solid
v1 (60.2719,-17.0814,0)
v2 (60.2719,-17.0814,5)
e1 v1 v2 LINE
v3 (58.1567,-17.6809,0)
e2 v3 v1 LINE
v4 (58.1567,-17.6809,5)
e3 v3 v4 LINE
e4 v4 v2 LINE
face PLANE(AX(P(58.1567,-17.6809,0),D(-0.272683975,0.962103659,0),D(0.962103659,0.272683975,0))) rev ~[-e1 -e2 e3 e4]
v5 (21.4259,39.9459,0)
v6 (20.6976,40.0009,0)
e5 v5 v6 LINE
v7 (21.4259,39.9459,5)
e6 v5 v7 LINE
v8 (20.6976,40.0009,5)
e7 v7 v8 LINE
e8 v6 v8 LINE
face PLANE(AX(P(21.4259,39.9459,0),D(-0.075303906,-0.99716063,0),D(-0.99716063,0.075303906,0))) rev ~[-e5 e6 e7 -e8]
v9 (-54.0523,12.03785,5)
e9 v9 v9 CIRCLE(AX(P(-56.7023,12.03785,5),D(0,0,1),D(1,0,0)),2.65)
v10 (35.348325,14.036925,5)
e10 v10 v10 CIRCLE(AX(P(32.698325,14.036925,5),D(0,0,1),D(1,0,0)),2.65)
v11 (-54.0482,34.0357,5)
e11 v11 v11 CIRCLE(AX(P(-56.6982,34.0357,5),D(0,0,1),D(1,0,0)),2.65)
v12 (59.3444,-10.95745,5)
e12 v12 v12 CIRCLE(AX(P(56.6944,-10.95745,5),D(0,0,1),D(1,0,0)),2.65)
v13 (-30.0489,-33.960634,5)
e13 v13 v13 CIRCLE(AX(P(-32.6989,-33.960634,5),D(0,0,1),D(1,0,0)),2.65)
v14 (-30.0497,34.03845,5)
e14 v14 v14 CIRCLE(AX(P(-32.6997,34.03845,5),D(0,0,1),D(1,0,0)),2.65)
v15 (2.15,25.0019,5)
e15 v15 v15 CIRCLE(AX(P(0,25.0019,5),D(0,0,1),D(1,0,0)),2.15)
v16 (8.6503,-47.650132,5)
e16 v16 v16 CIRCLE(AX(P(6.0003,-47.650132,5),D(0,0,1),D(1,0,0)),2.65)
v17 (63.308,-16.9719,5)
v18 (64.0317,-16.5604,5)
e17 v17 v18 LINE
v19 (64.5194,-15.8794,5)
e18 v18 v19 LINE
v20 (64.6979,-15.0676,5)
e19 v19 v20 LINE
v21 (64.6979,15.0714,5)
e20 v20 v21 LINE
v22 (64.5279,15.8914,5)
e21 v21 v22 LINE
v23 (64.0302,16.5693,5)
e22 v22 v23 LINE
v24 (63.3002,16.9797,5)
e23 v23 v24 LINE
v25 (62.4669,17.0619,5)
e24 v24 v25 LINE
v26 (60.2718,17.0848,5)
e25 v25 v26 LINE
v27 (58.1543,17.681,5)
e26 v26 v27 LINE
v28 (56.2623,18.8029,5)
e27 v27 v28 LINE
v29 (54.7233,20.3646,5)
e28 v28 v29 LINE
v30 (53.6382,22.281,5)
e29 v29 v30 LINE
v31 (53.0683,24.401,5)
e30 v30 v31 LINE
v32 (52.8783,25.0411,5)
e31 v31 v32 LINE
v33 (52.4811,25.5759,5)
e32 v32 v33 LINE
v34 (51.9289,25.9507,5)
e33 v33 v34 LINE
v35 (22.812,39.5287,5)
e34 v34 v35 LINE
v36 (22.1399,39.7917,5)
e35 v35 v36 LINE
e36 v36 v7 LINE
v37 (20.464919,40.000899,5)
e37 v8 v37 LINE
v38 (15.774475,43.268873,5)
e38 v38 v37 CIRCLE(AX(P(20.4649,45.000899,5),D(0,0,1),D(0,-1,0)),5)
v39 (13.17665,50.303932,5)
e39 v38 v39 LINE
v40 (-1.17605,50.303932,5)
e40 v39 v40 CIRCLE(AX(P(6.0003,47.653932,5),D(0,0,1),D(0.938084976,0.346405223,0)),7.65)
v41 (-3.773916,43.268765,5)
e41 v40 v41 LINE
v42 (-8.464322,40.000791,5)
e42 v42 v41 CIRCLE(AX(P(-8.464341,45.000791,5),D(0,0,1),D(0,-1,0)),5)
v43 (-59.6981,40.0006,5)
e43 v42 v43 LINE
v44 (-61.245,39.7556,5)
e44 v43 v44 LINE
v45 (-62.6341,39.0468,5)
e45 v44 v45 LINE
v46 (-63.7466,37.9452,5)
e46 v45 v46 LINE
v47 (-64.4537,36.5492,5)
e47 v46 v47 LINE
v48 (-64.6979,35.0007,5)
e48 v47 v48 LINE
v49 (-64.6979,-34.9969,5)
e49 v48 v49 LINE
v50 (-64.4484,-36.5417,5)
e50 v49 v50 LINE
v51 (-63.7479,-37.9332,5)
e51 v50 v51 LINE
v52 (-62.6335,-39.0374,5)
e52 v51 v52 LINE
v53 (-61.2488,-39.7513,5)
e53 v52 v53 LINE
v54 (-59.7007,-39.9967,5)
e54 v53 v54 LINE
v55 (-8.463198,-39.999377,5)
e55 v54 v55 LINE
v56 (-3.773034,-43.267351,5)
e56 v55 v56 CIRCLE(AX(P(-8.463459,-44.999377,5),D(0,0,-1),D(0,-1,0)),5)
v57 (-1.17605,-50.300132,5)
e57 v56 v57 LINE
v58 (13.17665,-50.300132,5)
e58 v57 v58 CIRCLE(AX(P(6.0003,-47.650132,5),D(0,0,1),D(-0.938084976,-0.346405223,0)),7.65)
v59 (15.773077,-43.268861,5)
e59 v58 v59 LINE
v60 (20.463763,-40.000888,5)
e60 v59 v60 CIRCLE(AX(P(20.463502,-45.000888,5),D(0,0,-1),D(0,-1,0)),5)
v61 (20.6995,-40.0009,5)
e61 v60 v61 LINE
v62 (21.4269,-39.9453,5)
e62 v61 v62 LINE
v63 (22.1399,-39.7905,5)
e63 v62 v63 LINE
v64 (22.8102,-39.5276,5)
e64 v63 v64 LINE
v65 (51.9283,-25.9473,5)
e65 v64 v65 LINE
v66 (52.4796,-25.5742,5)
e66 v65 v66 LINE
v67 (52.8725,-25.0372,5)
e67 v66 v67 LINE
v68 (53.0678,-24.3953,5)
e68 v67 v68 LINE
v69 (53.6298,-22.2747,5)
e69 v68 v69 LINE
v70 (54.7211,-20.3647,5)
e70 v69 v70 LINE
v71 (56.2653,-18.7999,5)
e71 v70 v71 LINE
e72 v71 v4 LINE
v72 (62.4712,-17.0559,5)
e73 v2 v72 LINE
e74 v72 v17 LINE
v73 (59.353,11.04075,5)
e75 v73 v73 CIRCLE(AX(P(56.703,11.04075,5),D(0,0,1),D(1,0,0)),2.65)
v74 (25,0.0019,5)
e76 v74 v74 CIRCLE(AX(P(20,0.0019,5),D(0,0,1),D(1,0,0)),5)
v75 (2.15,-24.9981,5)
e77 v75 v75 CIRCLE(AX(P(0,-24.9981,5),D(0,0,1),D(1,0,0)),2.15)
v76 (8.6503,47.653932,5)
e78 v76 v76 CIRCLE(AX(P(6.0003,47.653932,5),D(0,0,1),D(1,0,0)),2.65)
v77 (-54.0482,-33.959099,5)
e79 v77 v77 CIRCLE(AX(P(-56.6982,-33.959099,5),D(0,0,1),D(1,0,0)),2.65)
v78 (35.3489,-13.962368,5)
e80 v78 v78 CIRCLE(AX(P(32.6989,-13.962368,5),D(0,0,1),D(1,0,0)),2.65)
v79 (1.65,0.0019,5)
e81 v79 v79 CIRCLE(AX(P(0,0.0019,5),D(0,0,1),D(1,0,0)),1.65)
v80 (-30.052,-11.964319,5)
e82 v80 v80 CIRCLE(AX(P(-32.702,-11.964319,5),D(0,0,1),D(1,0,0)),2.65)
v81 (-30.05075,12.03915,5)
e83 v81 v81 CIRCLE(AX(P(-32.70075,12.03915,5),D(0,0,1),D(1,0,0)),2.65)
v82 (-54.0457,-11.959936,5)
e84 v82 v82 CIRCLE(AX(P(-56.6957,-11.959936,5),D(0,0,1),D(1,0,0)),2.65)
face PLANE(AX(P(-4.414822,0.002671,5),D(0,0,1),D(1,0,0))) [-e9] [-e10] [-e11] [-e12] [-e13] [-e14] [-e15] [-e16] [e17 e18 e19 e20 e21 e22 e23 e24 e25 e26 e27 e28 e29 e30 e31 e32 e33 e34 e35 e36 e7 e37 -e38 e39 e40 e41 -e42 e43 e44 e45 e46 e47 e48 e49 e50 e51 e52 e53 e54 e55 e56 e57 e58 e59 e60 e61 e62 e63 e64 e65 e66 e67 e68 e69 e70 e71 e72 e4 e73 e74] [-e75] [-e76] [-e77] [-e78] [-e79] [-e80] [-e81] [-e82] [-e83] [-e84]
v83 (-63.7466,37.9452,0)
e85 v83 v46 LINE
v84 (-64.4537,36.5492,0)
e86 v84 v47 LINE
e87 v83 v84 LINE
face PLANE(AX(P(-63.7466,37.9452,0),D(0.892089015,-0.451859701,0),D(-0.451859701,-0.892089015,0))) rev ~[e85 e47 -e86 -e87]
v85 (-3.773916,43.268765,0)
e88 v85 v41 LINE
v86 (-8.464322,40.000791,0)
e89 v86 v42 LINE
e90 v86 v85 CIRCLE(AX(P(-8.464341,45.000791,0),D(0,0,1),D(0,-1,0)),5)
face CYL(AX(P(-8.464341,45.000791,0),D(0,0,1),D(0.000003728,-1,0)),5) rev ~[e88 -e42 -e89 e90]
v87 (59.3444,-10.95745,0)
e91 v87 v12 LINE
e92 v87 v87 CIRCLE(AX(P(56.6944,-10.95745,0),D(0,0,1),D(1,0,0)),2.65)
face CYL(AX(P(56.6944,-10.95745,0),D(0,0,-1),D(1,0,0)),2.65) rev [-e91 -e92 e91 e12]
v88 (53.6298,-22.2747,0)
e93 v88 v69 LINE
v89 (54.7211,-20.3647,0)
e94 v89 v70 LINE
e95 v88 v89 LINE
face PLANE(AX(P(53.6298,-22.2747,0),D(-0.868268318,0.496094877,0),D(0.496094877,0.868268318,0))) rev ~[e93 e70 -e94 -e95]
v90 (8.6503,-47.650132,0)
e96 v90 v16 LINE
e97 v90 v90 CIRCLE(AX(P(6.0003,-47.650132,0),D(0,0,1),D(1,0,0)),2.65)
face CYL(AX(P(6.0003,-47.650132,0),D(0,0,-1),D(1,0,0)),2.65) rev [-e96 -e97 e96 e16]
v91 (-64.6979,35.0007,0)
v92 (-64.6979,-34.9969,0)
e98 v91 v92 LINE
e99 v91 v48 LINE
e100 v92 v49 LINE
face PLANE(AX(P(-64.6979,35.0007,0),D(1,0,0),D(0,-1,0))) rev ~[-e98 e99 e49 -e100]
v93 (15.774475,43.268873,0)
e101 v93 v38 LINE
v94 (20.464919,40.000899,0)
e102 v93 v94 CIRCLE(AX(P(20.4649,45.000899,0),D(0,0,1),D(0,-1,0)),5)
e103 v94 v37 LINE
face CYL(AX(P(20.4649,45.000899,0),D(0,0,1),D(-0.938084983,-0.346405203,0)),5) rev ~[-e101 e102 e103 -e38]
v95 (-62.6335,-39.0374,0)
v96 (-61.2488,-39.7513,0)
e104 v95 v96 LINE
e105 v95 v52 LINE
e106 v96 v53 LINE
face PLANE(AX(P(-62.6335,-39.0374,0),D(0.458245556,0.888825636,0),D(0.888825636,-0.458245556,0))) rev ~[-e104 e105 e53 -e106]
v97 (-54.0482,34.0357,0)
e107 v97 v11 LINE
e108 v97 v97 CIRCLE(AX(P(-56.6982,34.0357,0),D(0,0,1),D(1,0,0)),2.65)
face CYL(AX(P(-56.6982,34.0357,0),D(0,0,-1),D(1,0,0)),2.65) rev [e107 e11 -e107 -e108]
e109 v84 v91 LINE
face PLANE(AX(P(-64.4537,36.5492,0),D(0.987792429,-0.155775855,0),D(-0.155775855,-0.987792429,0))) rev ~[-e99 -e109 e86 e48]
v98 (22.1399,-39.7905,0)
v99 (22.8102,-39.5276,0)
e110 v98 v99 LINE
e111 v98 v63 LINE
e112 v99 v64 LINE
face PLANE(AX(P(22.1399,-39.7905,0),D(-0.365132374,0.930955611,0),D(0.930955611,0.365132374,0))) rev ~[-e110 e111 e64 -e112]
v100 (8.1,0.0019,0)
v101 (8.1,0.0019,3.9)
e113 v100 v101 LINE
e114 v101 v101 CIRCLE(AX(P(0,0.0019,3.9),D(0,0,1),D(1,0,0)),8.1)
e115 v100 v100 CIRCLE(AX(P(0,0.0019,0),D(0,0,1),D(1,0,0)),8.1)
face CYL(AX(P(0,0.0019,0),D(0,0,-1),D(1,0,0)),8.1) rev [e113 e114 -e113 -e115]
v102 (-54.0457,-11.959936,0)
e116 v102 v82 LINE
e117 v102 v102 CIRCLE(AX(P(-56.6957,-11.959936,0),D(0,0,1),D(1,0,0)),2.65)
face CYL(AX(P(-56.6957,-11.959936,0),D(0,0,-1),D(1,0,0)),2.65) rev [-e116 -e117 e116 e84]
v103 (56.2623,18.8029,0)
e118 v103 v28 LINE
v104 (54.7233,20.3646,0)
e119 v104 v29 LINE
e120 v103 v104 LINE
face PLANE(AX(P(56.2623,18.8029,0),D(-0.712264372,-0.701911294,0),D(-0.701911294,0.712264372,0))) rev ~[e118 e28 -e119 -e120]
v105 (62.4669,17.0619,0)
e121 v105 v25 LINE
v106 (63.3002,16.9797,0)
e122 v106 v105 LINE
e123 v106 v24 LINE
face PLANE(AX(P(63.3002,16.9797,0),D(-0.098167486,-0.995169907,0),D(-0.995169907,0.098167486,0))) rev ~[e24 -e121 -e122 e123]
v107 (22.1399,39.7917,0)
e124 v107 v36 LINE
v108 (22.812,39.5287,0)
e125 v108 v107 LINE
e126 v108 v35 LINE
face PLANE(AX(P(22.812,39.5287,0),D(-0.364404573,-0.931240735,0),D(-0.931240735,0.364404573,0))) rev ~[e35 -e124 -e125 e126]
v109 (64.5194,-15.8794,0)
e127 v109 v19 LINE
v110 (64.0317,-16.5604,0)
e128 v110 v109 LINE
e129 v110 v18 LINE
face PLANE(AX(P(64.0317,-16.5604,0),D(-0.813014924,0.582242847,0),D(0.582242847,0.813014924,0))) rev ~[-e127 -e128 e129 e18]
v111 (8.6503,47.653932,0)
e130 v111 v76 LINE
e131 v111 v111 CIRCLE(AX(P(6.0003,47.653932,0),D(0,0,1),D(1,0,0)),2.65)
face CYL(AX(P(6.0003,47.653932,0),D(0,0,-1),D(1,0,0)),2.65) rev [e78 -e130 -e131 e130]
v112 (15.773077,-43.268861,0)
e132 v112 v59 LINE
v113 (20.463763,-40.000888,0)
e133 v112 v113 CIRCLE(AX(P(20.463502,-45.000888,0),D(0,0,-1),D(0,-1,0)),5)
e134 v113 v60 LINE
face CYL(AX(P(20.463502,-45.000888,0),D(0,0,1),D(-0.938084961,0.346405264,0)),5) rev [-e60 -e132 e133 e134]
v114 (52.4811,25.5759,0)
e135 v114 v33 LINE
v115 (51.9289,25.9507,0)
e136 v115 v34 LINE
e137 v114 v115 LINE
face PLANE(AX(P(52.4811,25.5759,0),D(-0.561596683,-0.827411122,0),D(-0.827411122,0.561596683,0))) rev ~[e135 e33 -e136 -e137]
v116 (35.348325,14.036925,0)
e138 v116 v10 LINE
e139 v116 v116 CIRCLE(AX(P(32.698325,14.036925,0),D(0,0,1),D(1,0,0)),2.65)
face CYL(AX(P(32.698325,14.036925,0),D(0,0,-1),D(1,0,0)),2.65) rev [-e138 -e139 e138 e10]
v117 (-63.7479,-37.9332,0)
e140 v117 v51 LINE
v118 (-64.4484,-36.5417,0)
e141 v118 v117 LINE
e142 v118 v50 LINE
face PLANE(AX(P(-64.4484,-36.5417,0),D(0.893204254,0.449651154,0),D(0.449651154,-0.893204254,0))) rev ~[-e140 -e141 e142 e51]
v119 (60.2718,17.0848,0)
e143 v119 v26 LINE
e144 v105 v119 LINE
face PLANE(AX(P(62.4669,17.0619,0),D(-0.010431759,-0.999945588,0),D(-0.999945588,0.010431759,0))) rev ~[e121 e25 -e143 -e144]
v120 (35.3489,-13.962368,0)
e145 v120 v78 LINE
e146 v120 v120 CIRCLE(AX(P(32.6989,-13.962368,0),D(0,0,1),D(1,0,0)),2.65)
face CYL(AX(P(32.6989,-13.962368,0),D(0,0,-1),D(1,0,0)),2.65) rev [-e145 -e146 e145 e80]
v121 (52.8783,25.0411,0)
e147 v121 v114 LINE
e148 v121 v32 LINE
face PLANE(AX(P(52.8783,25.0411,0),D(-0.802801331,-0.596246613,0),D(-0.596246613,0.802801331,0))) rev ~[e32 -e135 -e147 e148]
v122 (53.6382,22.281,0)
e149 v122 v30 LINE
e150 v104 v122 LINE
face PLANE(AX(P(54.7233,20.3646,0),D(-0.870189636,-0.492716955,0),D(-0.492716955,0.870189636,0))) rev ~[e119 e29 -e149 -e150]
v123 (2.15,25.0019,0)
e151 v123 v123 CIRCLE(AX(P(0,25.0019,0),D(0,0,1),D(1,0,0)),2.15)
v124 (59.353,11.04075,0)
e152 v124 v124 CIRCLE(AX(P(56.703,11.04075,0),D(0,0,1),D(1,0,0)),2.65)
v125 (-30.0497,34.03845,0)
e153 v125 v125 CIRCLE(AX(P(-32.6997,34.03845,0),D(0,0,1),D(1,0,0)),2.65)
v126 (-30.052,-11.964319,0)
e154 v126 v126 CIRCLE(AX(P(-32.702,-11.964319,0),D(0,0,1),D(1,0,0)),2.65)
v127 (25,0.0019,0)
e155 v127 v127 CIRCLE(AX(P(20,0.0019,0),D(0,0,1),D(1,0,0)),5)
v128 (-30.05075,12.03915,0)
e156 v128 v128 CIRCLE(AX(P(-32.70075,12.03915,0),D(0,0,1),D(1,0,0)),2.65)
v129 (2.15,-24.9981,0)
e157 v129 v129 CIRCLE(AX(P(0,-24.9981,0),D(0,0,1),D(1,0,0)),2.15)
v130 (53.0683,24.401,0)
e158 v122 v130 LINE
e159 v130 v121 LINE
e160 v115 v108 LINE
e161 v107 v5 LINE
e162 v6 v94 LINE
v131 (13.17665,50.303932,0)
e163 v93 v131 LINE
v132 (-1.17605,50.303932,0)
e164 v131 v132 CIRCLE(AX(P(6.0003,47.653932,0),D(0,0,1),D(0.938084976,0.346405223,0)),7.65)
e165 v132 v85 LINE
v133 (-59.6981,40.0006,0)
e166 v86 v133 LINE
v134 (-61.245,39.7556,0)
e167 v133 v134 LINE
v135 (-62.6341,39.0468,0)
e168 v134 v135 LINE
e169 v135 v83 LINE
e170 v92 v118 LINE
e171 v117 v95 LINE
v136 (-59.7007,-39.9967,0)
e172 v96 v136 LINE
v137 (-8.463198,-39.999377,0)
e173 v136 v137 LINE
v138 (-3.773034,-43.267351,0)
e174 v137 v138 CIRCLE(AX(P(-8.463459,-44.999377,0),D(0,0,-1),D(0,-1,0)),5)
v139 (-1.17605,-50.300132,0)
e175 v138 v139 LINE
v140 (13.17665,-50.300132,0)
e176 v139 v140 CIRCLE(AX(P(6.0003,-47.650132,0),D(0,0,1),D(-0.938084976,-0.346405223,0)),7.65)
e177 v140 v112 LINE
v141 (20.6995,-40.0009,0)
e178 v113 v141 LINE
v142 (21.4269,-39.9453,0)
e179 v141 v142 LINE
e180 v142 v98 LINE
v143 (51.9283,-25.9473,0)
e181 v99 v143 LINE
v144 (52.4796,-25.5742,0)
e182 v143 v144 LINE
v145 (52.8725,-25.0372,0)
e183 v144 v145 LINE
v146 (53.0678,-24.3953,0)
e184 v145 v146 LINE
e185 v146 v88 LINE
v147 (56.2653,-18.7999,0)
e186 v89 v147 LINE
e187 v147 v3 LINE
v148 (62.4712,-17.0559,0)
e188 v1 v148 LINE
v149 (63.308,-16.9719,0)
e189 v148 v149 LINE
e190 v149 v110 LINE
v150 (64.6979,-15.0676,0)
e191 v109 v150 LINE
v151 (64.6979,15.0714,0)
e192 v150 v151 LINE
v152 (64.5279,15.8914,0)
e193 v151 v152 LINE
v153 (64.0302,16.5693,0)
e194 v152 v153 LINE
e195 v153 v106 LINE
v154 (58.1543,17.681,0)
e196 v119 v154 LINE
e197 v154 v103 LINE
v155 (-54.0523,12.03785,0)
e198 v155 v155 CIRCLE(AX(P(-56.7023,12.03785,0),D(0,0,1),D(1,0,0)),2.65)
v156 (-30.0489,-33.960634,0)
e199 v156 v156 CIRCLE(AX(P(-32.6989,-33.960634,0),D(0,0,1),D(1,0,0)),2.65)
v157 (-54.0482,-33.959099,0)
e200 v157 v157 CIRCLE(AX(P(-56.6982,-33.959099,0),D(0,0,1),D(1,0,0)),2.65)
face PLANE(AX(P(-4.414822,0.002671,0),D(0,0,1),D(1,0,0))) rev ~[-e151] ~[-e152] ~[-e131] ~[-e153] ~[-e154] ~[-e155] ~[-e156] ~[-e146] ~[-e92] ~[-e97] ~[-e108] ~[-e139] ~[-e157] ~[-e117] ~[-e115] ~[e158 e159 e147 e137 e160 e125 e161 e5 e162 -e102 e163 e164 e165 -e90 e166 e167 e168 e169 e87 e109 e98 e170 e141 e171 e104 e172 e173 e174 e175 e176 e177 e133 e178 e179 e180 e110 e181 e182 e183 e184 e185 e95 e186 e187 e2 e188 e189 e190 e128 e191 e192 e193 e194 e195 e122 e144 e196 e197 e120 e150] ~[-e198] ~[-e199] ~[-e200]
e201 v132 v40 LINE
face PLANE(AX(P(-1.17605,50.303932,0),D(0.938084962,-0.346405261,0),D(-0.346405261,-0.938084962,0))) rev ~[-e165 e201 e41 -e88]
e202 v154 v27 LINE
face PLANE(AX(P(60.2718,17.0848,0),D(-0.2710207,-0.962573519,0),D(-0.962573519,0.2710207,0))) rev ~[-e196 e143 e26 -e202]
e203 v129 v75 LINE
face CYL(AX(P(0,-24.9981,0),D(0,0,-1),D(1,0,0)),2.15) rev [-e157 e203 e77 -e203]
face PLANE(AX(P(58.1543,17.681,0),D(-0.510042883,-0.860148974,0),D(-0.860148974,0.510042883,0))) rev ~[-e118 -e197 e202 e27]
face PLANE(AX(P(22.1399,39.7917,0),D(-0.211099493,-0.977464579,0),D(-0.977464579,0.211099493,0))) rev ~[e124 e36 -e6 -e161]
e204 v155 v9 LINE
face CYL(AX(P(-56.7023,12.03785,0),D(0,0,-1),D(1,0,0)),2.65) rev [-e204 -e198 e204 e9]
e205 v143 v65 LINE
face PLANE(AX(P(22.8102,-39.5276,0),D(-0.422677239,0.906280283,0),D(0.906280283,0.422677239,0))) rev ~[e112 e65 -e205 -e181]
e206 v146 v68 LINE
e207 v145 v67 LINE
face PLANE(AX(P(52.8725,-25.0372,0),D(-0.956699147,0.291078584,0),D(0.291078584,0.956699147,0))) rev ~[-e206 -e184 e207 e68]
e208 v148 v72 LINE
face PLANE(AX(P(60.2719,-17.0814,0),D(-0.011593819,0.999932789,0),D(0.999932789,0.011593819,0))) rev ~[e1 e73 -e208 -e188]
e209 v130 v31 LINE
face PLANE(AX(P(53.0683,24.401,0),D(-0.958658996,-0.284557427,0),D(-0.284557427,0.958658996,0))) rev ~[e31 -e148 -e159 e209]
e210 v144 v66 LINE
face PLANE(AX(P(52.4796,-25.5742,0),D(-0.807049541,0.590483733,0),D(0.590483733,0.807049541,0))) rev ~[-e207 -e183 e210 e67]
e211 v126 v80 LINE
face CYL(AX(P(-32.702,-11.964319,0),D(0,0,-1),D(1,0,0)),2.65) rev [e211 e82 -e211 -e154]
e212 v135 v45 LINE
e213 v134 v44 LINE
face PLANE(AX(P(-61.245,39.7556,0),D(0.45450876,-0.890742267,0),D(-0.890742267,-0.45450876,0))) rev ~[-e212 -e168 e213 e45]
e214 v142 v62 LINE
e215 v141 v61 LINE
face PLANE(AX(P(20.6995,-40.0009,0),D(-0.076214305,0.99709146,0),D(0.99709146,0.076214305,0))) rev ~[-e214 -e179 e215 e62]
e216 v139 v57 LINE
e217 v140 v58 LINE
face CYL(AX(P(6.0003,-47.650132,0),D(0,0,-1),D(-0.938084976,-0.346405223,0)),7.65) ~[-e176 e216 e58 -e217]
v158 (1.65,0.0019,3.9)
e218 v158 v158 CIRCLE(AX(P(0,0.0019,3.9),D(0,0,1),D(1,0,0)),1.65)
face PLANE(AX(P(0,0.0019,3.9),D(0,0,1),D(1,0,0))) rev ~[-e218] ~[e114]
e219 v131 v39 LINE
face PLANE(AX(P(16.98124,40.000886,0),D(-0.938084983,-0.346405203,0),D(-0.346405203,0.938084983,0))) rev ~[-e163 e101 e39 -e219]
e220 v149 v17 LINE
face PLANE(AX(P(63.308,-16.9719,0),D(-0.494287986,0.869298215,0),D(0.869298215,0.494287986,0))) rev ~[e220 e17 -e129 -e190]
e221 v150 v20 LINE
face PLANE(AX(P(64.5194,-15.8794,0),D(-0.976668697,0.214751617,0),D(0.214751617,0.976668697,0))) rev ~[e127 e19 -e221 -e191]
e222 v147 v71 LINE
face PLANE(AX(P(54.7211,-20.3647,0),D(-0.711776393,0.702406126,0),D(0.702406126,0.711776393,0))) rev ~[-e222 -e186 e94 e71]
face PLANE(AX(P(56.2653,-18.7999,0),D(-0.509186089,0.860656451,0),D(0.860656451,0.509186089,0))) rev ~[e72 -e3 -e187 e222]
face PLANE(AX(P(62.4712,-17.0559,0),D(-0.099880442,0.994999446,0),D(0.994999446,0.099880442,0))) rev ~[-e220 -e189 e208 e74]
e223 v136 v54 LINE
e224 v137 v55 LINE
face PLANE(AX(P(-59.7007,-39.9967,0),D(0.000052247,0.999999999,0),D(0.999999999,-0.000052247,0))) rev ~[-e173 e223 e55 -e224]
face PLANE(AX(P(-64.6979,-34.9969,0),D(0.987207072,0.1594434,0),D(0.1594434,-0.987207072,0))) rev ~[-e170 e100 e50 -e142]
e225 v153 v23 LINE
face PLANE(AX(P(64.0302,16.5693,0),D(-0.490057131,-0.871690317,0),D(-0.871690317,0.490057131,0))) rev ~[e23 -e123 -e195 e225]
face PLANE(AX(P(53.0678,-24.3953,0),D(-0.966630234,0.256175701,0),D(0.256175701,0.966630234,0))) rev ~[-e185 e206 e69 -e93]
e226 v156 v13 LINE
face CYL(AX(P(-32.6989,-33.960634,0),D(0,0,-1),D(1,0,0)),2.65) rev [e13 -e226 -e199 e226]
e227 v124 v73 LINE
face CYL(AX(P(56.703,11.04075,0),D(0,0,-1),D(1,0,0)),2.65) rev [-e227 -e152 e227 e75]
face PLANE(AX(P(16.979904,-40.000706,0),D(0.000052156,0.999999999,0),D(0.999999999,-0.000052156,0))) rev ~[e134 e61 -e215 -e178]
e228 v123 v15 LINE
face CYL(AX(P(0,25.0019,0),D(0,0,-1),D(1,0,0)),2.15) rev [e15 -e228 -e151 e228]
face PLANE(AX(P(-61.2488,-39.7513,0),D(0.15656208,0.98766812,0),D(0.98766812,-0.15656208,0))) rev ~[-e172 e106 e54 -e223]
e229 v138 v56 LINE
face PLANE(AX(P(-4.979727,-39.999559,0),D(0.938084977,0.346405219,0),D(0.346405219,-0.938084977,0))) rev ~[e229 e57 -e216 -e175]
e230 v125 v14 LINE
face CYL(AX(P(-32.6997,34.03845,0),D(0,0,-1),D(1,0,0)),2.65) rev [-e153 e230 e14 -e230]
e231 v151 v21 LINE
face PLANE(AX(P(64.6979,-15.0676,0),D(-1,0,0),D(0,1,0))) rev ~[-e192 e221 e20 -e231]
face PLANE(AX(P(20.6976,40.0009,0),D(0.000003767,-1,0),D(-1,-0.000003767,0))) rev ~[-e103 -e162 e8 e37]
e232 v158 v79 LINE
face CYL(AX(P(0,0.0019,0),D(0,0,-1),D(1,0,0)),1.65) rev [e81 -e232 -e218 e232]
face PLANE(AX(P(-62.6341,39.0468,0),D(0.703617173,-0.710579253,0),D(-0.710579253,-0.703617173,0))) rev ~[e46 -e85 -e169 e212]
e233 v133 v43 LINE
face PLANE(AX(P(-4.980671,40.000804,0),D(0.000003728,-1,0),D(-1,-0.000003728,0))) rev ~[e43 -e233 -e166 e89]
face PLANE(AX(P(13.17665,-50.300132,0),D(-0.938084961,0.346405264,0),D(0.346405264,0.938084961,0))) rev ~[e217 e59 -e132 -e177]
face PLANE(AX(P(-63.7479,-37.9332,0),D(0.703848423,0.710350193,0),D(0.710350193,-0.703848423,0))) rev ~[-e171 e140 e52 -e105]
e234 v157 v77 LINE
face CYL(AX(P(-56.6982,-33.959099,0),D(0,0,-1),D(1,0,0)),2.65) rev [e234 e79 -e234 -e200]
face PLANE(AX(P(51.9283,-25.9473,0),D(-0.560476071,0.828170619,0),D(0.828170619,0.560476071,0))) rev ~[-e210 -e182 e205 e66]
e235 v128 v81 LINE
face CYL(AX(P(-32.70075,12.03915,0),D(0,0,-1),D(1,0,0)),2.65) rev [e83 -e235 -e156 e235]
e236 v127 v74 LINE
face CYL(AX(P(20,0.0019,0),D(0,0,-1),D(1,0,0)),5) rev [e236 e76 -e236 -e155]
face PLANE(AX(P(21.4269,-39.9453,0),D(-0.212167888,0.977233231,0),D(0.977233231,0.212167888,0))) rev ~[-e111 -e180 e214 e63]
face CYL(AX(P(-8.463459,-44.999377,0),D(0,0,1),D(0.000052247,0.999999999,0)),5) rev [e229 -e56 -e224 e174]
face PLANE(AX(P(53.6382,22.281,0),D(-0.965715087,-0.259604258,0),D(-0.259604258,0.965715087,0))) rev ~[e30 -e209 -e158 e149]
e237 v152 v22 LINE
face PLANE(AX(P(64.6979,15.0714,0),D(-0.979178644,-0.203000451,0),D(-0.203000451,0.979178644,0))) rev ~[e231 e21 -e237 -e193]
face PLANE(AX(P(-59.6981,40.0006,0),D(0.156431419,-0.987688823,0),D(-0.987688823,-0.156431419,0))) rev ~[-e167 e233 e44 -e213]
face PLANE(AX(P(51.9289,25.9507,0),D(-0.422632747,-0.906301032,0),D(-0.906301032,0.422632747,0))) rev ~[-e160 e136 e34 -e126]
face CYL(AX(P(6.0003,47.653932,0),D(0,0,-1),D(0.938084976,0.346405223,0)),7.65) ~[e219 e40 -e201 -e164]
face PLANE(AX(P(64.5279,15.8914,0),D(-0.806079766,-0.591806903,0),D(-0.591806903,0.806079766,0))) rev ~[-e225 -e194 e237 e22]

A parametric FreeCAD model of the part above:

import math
import FreeCAD as App
import Part
import Sketcher
from FreeCAD import Vector
Q = App.Units.Quantity


def edges_at(feature, points):
    """Names of the edges that pass closest to the given points."""
    edges = feature.Shape.Edges
    near = lambda p: min(range(len(edges)), key=lambda i: edges[i].distToShape(Part.Vertex(*p))[0])
    return sorted({f"Edge{near(p) + 1}" for p in points})

doc = App.newDocument("Part")
body = doc.addObject("PartDesign::Body", "Body")

# Sketch on XY plane
sketch1 = body.newObject("Sketcher::SketchObject", "Sketch")
sketch1.AttachmentSupport = (doc.getObject("XY_Plane"), [""])
sketch1.MapMode = "FlatFace"
sketch1.addGeometry(Part.LineSegment(Vector(-64.5, 36.5, 0), Vector(-64.7, 35, 0)), False)
sketch1.addGeometry(Part.LineSegment(Vector(-64.7, 35, 0), Vector(-64.7, -35, 0)), False)
sketch1.addGeometry(Part.LineSegment(Vector(-64.7, -35, 0), Vector(-64.4, -36.5, 0)), False)
sketch1.addGeometry(Part.LineSegment(Vector(-64.4, -36.5, 0), Vector(-63.7, -37.9, 0)), False)
sketch1.addGeometry(Part.LineSegment(Vector(-63.7, -37.9, 0), Vector(-62.6, -39, 0)), False)
sketch1.addGeometry(Part.LineSegment(Vector(-62.6, -39, 0), Vector(-61.2, -39.8, 0)), False)
sketch1.addGeometry(Part.LineSegment(Vector(-61.2, -39.8, 0), Vector(-59.7, -40, 0)), False)
sketch1.addGeometry(Part.LineSegment(Vector(-59.7, -40, 0), Vector(-5, -40, 0)), False)
sketch1.addGeometry(Part.LineSegment(Vector(-5, -40, 0), Vector(-1.2, -50.3, 0)), False)
sketch1.addGeometry(Part.ArcOfCircle(Part.Circle(Vector(6, -47.7, 0), Vector(0, 0, 1), 7.6), math.radians(-160), math.radians(-20)), False)
sketch1.addGeometry(Part.LineSegment(Vector(13.2, -50.3, 0), Vector(17, -40, 0)), False)
sketch1.addGeometry(Part.LineSegment(Vector(17, -40, 0), Vector(20.7, -40, 0)), False)
sketch1.addGeometry(Part.LineSegment(Vector(20.7, -40, 0), Vector(21.4, -39.9, 0)), False)
sketch1.addGeometry(Part.LineSegment(Vector(21.4, -39.9, 0), Vector(22.1, -39.8, 0)), False)
sketch1.addGeometry(Part.LineSegment(Vector(22.1, -39.8, 0), Vector(22.8, -39.5, 0)), False)
sketch1.addGeometry(Part.LineSegment(Vector(22.8, -39.5, 0), Vector(51.9, -25.9, 0)), False)
sketch1.addGeometry(Part.LineSegment(Vector(51.9, -25.9, 0), Vector(52.5, -25.6, 0)), False)
sketch1.addGeometry(Part.LineSegment(Vector(52.5, -25.6, 0), Vector(52.9, -25, 0)), False)
sketch1.addGeometry(Part.LineSegment(Vector(52.9, -25, 0), Vector(53.1, -24.4, 0)), False)
sketch1.addGeometry(Part.LineSegment(Vector(53.1, -24.4, 0), Vector(53.6, -22.3, 0)), False)
sketch1.addGeometry(Part.LineSegment(Vector(53.6, -22.3, 0), Vector(54.7, -20.4, 0)), False)
sketch1.addGeometry(Part.LineSegment(Vector(54.7, -20.4, 0), Vector(56.3, -18.8, 0)), False)
sketch1.addGeometry(Part.LineSegment(Vector(56.3, -18.8, 0), Vector(58.2, -17.7, 0)), False)
sketch1.addGeometry(Part.LineSegment(Vector(58.2, -17.7, 0), Vector(60.3, -17.1, 0)), False)
sketch1.addGeometry(Part.LineSegment(Vector(60.3, -17.1, 0), Vector(62.5, -17.1, 0)), False)
sketch1.addGeometry(Part.LineSegment(Vector(62.5, -17.1, 0), Vector(63.3, -17, 0)), False)
sketch1.addGeometry(Part.LineSegment(Vector(63.3, -17, 0), Vector(64, -16.6, 0)), False)
sketch1.addGeometry(Part.LineSegment(Vector(64, -16.6, 0), Vector(64.5, -15.9, 0)), False)
sketch1.addGeometry(Part.LineSegment(Vector(64.5, -15.9, 0), Vector(64.7, -15.1, 0)), False)
sketch1.addGeometry(Part.LineSegment(Vector(64.7, -15.1, 0), Vector(64.7, 15.1, 0)), False)
sketch1.addGeometry(Part.LineSegment(Vector(64.7, 15.1, 0), Vector(64.5, 15.9, 0)), False)
sketch1.addGeometry(Part.LineSegment(Vector(64.5, 15.9, 0), Vector(64, 16.6, 0)), False)
sketch1.addGeometry(Part.LineSegment(Vector(64, 16.6, 0), Vector(63.3, 17, 0)), False)
sketch1.addGeometry(Part.LineSegment(Vector(63.3, 17, 0), Vector(62.5, 17.1, 0)), False)
sketch1.addGeometry(Part.LineSegment(Vector(62.5, 17.1, 0), Vector(60.3, 17.1, 0)), False)
sketch1.addGeometry(Part.LineSegment(Vector(60.3, 17.1, 0), Vector(58.2, 17.7, 0)), False)
sketch1.addGeometry(Part.LineSegment(Vector(58.2, 17.7, 0), Vector(56.3, 18.8, 0)), False)
sketch1.addGeometry(Part.LineSegment(Vector(56.3, 18.8, 0), Vector(54.7, 20.4, 0)), False)
sketch1.addGeometry(Part.LineSegment(Vector(54.7, 20.4, 0), Vector(53.6, 22.3, 0)), False)
sketch1.addGeometry(Part.LineSegment(Vector(53.6, 22.3, 0), Vector(53.1, 24.4, 0)), False)
sketch1.addGeometry(Part.LineSegment(Vector(53.1, 24.4, 0), Vector(52.9, 25, 0)), False)
sketch1.addGeometry(Part.LineSegment(Vector(52.9, 25, 0), Vector(52.5, 25.6, 0)), False)
sketch1.addGeometry(Part.LineSegment(Vector(52.5, 25.6, 0), Vector(51.9, 26, 0)), False)
sketch1.addGeometry(Part.LineSegment(Vector(51.9, 26, 0), Vector(22.8, 39.5, 0)), False)
sketch1.addGeometry(Part.LineSegment(Vector(22.8, 39.5, 0), Vector(22.1, 39.8, 0)), False)
sketch1.addGeometry(Part.LineSegment(Vector(22.1, 39.8, 0), Vector(21.4, 39.9, 0)), False)
sketch1.addGeometry(Part.LineSegment(Vector(21.4, 39.9, 0), Vector(20.7, 40, 0)), False)
sketch1.addGeometry(Part.LineSegment(Vector(20.7, 40, 0), Vector(17, 40, 0)), False)
sketch1.addGeometry(Part.LineSegment(Vector(17, 40, 0), Vector(13.2, 50.3, 0)), False)
sketch1.addGeometry(Part.ArcOfCircle(Part.Circle(Vector(6, 47.7, 0), Vector(0, 0, 1), 7.6), math.radians(20), math.radians(160)), False)
sketch1.addGeometry(Part.LineSegment(Vector(-1.2, 50.3, 0), Vector(-5, 40, 0)), False)
sketch1.addGeometry(Part.LineSegment(Vector(-5, 40, 0), Vector(-59.7, 40, 0)), False)
sketch1.addGeometry(Part.LineSegment(Vector(-59.7, 40, 0), Vector(-61.2, 39.8, 0)), False)
sketch1.addGeometry(Part.LineSegment(Vector(-61.2, 39.8, 0), Vector(-62.6, 39, 0)), False)
sketch1.addGeometry(Part.LineSegment(Vector(-62.6, 39, 0), Vector(-63.7, 37.9, 0)), False)
sketch1.addGeometry(Part.LineSegment(Vector(-63.7, 37.9, 0), Vector(-64.5, 36.5, 0)), False)
sketch1.addGeometry(Part.Circle(Vector(-56.7, -34, 0), Vector(0, 0, 1), 2.6), False)
sketch1.addGeometry(Part.Circle(Vector(-32.7, -34, 0), Vector(0, 0, 1), 2.6), False)
sketch1.addGeometry(Part.Circle(Vector(-56.7, -12, 0), Vector(0, 0, 1), 2.6), False)
sketch1.addGeometry(Part.Circle(Vector(-32.7, -12, 0), Vector(0, 0, 1), 2.6), False)
sketch1.addGeometry(Part.Circle(Vector(0, -25, 0), Vector(0, 0, 1), 2.1), False)
sketch1.addGeometry(Part.Circle(Vector(6, -47.7, 0), Vector(0, 0, 1), 2.6), False)
sketch1.addGeometry(Part.Circle(Vector(32.7, -14, 0), Vector(0, 0, 1), 2.6), False)
sketch1.addGeometry(Part.Circle(Vector(56.7, -11, 0), Vector(0, 0, 1), 2.6), False)
sketch1.addGeometry(Part.Circle(Vector(-56.7, 12, 0), Vector(0, 0, 1), 2.6), False)
sketch1.addGeometry(Part.Circle(Vector(-32.7, 12, 0), Vector(0, 0, 1), 2.6), False)
sketch1.addGeometry(Part.Circle(Vector(0, 0, 0), Vector(0, 0, 1), 1.6), False)
sketch1.addGeometry(Part.Circle(Vector(0, 25, 0), Vector(0, 0, 1), 2.1), False)
sketch1.addGeometry(Part.Circle(Vector(-56.7, 34, 0), Vector(0, 0, 1), 2.6), False)
sketch1.addGeometry(Part.Circle(Vector(-32.7, 34, 0), Vector(0, 0, 1), 2.6), False)
sketch1.addGeometry(Part.Circle(Vector(20, 0, 0), Vector(0, 0, 1), 5), False)
sketch1.addGeometry(Part.Circle(Vector(56.7, 11, 0), Vector(0, 0, 1), 2.6), False)
sketch1.addGeometry(Part.Circle(Vector(32.7, 14, 0), Vector(0, 0, 1), 2.6), False)
sketch1.addGeometry(Part.Circle(Vector(6, 47.7, 0), Vector(0, 0, 1), 2.6), False)
sketch1.addConstraint(Sketcher.Constraint("Coincident", 0, 2, 1, 1))
sketch1.addConstraint(Sketcher.Constraint("Coincident", 1, 2, 2, 1))
sketch1.addConstraint(Sketcher.Constraint("Coincident", 2, 2, 3, 1))
sketch1.addConstraint(Sketcher.Constraint("Coincident", 3, 2, 4, 1))
sketch1.addConstraint(Sketcher.Constraint("Coincident", 4, 2, 5, 1))
sketch1.addConstraint(Sketcher.Constraint("Coincident", 5, 2, 6, 1))
sketch1.addConstraint(Sketcher.Constraint("Coincident", 6, 2, 7, 1))
sketch1.addConstraint(Sketcher.Constraint("Coincident", 7, 2, 8, 1))
sketch1.addConstraint(Sketcher.Constraint("Tangent", 8, 2, 9, 1))
sketch1.addConstraint(Sketcher.Constraint("Tangent", 9, 2, 10, 1))
sketch1.addConstraint(Sketcher.Constraint("Coincident", 10, 2, 11, 1))
sketch1.addConstraint(Sketcher.Constraint("Coincident", 11, 2, 12, 1))
sketch1.addConstraint(Sketcher.Constraint("Coincident", 12, 2, 13, 1))
sketch1.addConstraint(Sketcher.Constraint("Coincident", 13, 2, 14, 1))
sketch1.addConstraint(Sketcher.Constraint("Coincident", 14, 2, 15, 1))
sketch1.addConstraint(Sketcher.Constraint("Coincident", 15, 2, 16, 1))
sketch1.addConstraint(Sketcher.Constraint("Coincident", 16, 2, 17, 1))
sketch1.addConstraint(Sketcher.Constraint("Coincident", 17, 2, 18, 1))
sketch1.addConstraint(Sketcher.Constraint("Coincident", 18, 2, 19, 1))
sketch1.addConstraint(Sketcher.Constraint("Coincident", 19, 2, 20, 1))
sketch1.addConstraint(Sketcher.Constraint("Coincident", 20, 2, 21, 1))
sketch1.addConstraint(Sketcher.Constraint("Coincident", 21, 2, 22, 1))
sketch1.addConstraint(Sketcher.Constraint("Coincident", 22, 2, 23, 1))
sketch1.addConstraint(Sketcher.Constraint("Coincident", 23, 2, 24, 1))
sketch1.addConstraint(Sketcher.Constraint("Coincident", 24, 2, 25, 1))
sketch1.addConstraint(Sketcher.Constraint("Coincident", 25, 2, 26, 1))
sketch1.addConstraint(Sketcher.Constraint("Coincident", 26, 2, 27, 1))
sketch1.addConstraint(Sketcher.Constraint("Coincident", 27, 2, 28, 1))
sketch1.addConstraint(Sketcher.Constraint("Coincident", 28, 2, 29, 1))
sketch1.addConstraint(Sketcher.Constraint("Coincident", 29, 2, 30, 1))
sketch1.addConstraint(Sketcher.Constraint("Coincident", 30, 2, 31, 1))
sketch1.addConstraint(Sketcher.Constraint("Coincident", 31, 2, 32, 1))
sketch1.addConstraint(Sketcher.Constraint("Coincident", 32, 2, 33, 1))
sketch1.addConstraint(Sketcher.Constraint("Coincident", 33, 2, 34, 1))
sketch1.addConstraint(Sketcher.Constraint("Coincident", 34, 2, 35, 1))
sketch1.addConstraint(Sketcher.Constraint("Coincident", 35, 2, 36, 1))
sketch1.addConstraint(Sketcher.Constraint("Coincident", 36, 2, 37, 1))
sketch1.addConstraint(Sketcher.Constraint("Coincident", 37, 2, 38, 1))
sketch1.addConstraint(Sketcher.Constraint("Coincident", 38, 2, 39, 1))
sketch1.addConstraint(Sketcher.Constraint("Coincident", 39, 2, 40, 1))
sketch1.addConstraint(Sketcher.Constraint("Coincident", 40, 2, 41, 1))
sketch1.addConstraint(Sketcher.Constraint("Coincident", 41, 2, 42, 1))
sketch1.addConstraint(Sketcher.Constraint("Coincident", 42, 2, 43, 1))
sketch1.addConstraint(Sketcher.Constraint("Coincident", 43, 2, 44, 1))
sketch1.addConstraint(Sketcher.Constraint("Coincident", 44, 2, 45, 1))
sketch1.addConstraint(Sketcher.Constraint("Coincident", 45, 2, 46, 1))
sketch1.addConstraint(Sketcher.Constraint("Coincident", 46, 2, 47, 1))
sketch1.addConstraint(Sketcher.Constraint("Coincident", 47, 2, 48, 1))
sketch1.addConstraint(Sketcher.Constraint("Tangent", 48, 2, 49, 1))
sketch1.addConstraint(Sketcher.Constraint("Tangent", 49, 2, 50, 1))
sketch1.addConstraint(Sketcher.Constraint("Coincident", 50, 2, 51, 1))
sketch1.addConstraint(Sketcher.Constraint("Coincident", 51, 2, 52, 1))
sketch1.addConstraint(Sketcher.Constraint("Coincident", 52, 2, 53, 1))
sketch1.addConstraint(Sketcher.Constraint("Coincident", 53, 2, 54, 1))
sketch1.addConstraint(Sketcher.Constraint("Coincident", 54, 2, 55, 1))
sketch1.addConstraint(Sketcher.Constraint("Coincident", 55, 2, 0, 1))
sketch1.addConstraint(Sketcher.Constraint("Vertical", 1))
sketch1.addConstraint(Sketcher.Constraint("Vertical", 29))
sketch1.addConstraint(Sketcher.Constraint("Coincident", 61, 3, 9, 3))
sketch1.addConstraint(Sketcher.Constraint("Coincident", 73, 3, 49, 3))
sketch1.addConstraint(Sketcher.Constraint("Equal", 9, 49))
sketch1.addConstraint(Sketcher.Constraint("Equal", 56, 57))
sketch1.addConstraint(Sketcher.Constraint("Equal", 57, 58))
sketch1.addConstraint(Sketcher.Constraint("Equal", 58, 59))
sketch1.addConstraint(Sketcher.Constraint("Equal", 59, 61))
sketch1.addConstraint(Sketcher.Constraint("Equal", 61, 62))
sketch1.addConstraint(Sketcher.Constraint("Equal", 62, 63))
sketch1.addConstraint(Sketcher.Constraint("Equal", 63, 64))
sketch1.addConstraint(Sketcher.Constraint("Equal", 64, 65))
sketch1.addConstraint(Sketcher.Constraint("Equal", 60, 67))
sketch1.addConstraint(Sketcher.Constraint("Equal", 65, 68))
sketch1.addConstraint(Sketcher.Constraint("Equal", 68, 69))
sketch1.addConstraint(Sketcher.Constraint("Equal", 69, 71))
sketch1.addConstraint(Sketcher.Constraint("Equal", 71, 72))
sketch1.addConstraint(Sketcher.Constraint("Equal", 72, 73))
sketch1.addConstraint(Sketcher.Constraint("PointOnObject", 60, 3, -2))
sketch1.addConstraint(Sketcher.Constraint("PointOnObject", 66, 3, -2))
sketch1.addConstraint(Sketcher.Constraint("PointOnObject", 67, 3, -2))
sketch1.addConstraint(Sketcher.Constraint("Parallel", 7, 11))
sketch1.addConstraint(Sketcher.Constraint("Parallel", 8, 48))
sketch1.addConstraint(Sketcher.Constraint("Parallel", 10, 50))
sketch1.addConstraint(Sketcher.Constraint("Parallel", 47, 51))
sketch1.addConstraint(Sketcher.Constraint("Horizontal", 66, 3, 70, 3))
sketch1.addConstraint(Sketcher.Constraint("Horizontal", 8, 2, 9, 2))
sketch1.addConstraint(Sketcher.Constraint("Vertical", 9, 3, 49, 3))
sketch1.addConstraint(Sketcher.Constraint("Vertical", 56, 3, 68, 3))
sketch1.addConstraint(Sketcher.Constraint("Vertical", 13, 2, 44, 2))
sketch1.addConstraint(Sketcher.Constraint("Diameter", 70, Q("10 mm")))
sketch1.addConstraint(Sketcher.Constraint("Diameter", 56, Q("5.3 mm")))
sketch1.addConstraint(Sketcher.Constraint("Diameter", 60, Q("4.3 mm")))
sketch1.addConstraint(Sketcher.Constraint("Diameter", 66, Q("3.3 mm")))
sketch1.addConstraint(Sketcher.Constraint("Radius", 9, Q("7.65 mm")))
sketch1.addConstraint(Sketcher.Constraint("DistanceX", -1, 1, 70, 3, Q("20 mm")))
sketch1.addConstraint(Sketcher.Constraint("DistanceY", 29, 1, 29, 2, Q("30.139 mm")))
sketch1.addConstraint(Sketcher.Constraint("DistanceY", 1, 2, 1, 1, Q("69.9976 mm")))
sketch1.addConstraint(Sketcher.Constraint("DistanceX", 59, 3, -1, 1, Q("32.702 mm")))
sketch1.addConstraint(Sketcher.Constraint("DistanceX", -1, 1, 71, 3, Q("56.703 mm")))
sketch1.addConstraint(Sketcher.Constraint("DistanceX", -1, 1, 25, 2, Q("63.308 mm")))
sketch1.addConstraint(Sketcher.Constraint("DistanceY", -1, 1, 35, 2, Q("17.681 mm")))
sketch1.addConstraint(Sketcher.Constraint("DistanceY", -1, 1, 38, 2, Q("22.281 mm")))
sketch1.addConstraint(Sketcher.Constraint("DistanceY", -1, 1, 39, 2, Q("24.401 mm")))
sketch1.addConstraint(Sketcher.Constraint("DistanceX", -1, 1, 43, 2, Q("22.812 mm")))
sketch1.addConstraint(Sketcher.Constraint("DistanceX", 52, 2, -1, 1, Q("61.245 mm")))
sketch1.addConstraint(Sketcher.Constraint("Distance", 5, Q("1.557898 mm")))
sketch1.addConstraint(Sketcher.Constraint("DistanceX", -1, 1, 9, 3, Q("6.0003 mm")))
sketch1.addConstraint(Sketcher.Constraint("DistanceX", 56, 3, -1, 1, Q("56.6982 mm")))
sketch1.addConstraint(Sketcher.Constraint("DistanceY", 56, 3, -1, 1, Q("33.959099 mm")))
sketch1.addConstraint(Sketcher.Constraint("DistanceX", 57, 3, -1, 1, Q("32.6989 mm")))
sketch1.addConstraint(Sketcher.Constraint("DistanceX", 58, 3, -1, 1, Q("56.6957 mm")))
sketch1.addConstraint(Sketcher.Constraint("DistanceY", 60, 3, -1, 1, Q("24.9981 mm")))
sketch1.addConstraint(Sketcher.Constraint("DistanceX", -1, 1, 62, 3, Q("32.6989 mm")))
sketch1.addConstraint(Sketcher.Constraint("DistanceX", -1, 1, 63, 3, Q("56.6944 mm")))
sketch1.addConstraint(Sketcher.Constraint("DistanceX", 64, 3, -1, 1, Q("56.7023 mm")))
sketch1.addConstraint(Sketcher.Constraint("DistanceY", -1, 1, 66, 3, Q("0.0019 mm")))
sketch1.addConstraint(Sketcher.Constraint("DistanceY", -1, 1, 67, 3, Q("25.0019 mm")))
sketch1.addConstraint(Sketcher.Constraint("DistanceY", -1, 1, 68, 3, Q("34.0357 mm")))
sketch1.addConstraint(Sketcher.Constraint("DistanceX", 69, 3, -1, 1, Q("32.6997 mm")))
sketch1.addConstraint(Sketcher.Constraint("DistanceX", 0, 2, -1, 1, Q("64.6979 mm")))
sketch1.addConstraint(Sketcher.Constraint("DistanceY", -1, 1, 0, 2, Q("35.0007 mm")))
sketch1.addConstraint(Sketcher.Constraint("DistanceX", 2, 2, -1, 1, Q("64.4484 mm")))
sketch1.addConstraint(Sketcher.Constraint("DistanceY", 2, 2, -1, 1, Q("36.5417 mm")))
sketch1.addConstraint(Sketcher.Constraint("DistanceX", 3, 2, -1, 1, Q("63.7479 mm")))
sketch1.addConstraint(Sketcher.Constraint("DistanceY", 3, 2, -1, 1, Q("37.9332 mm")))
sketch1.addConstraint(Sketcher.Constraint("DistanceX", 4, 2, -1, 1, Q("62.6335 mm")))
sketch1.addConstraint(Sketcher.Constraint("DistanceY", 4, 2, -1, 1, Q("39.0374 mm")))
sketch1.addConstraint(Sketcher.Constraint("DistanceX", 5, 2, -1, 1, Q("61.2488 mm")))
sketch1.addConstraint(Sketcher.Constraint("DistanceX", 6, 2, -1, 1, Q("59.7007 mm")))
sketch1.addConstraint(Sketcher.Constraint("DistanceY", 6, 2, -1, 1, Q("39.9967 mm")))
sketch1.addConstraint(Sketcher.Constraint("DistanceX", -1, 1, 11, 2, Q("20.6995 mm")))
sketch1.addConstraint(Sketcher.Constraint("DistanceY", 11, 2, -1, 1, Q("40.0009 mm")))
sketch1.addConstraint(Sketcher.Constraint("DistanceX", -1, 1, 12, 2, Q("21.4269 mm")))
sketch1.addConstraint(Sketcher.Constraint("DistanceY", 12, 2, -1, 1, Q("39.9453 mm")))
sketch1.addConstraint(Sketcher.Constraint("DistanceX", -1, 1, 13, 2, Q("22.1399 mm")))
sketch1.addConstraint(Sketcher.Constraint("DistanceY", 13, 2, -1, 1, Q("39.7905 mm")))
sketch1.addConstraint(Sketcher.Constraint("DistanceX", -1, 1, 14, 2, Q("22.8102 mm")))
sketch1.addConstraint(Sketcher.Constraint("DistanceY", 14, 2, -1, 1, Q("39.5276 mm")))
sketch1.addConstraint(Sketcher.Constraint("DistanceX", -1, 1, 15, 2, Q("51.9283 mm")))
sketch1.addConstraint(Sketcher.Constraint("DistanceY", 15, 2, -1, 1, Q("25.9473 mm")))
sketch1.addConstraint(Sketcher.Constraint("DistanceX", -1, 1, 16, 2, Q("52.4796 mm")))
sketch1.addConstraint(Sketcher.Constraint("DistanceY", 16, 2, -1, 1, Q("25.5742 mm")))
sketch1.addConstraint(Sketcher.Constraint("DistanceX", -1, 1, 17, 2, Q("52.8725 mm")))
sketch1.addConstraint(Sketcher.Constraint("DistanceY", 17, 2, -1, 1, Q("25.0372 mm")))
sketch1.addConstraint(Sketcher.Constraint("DistanceX", -1, 1, 18, 2, Q("53.0678 mm")))
sketch1.addConstraint(Sketcher.Constraint("DistanceY", 18, 2, -1, 1, Q("24.3953 mm")))
sketch1.addConstraint(Sketcher.Constraint("DistanceX", -1, 1, 19, 2, Q("53.6298 mm")))
sketch1.addConstraint(Sketcher.Constraint("DistanceY", 19, 2, -1, 1, Q("22.2747 mm")))
sketch1.addConstraint(Sketcher.Constraint("DistanceX", -1, 1, 20, 2, Q("54.7211 mm")))
sketch1.addConstraint(Sketcher.Constraint("DistanceY", 20, 2, -1, 1, Q("20.3647 mm")))
sketch1.addConstraint(Sketcher.Constraint("DistanceX", -1, 1, 21, 2, Q("56.2653 mm")))
sketch1.addConstraint(Sketcher.Constraint("DistanceY", 21, 2, -1, 1, Q("18.7999 mm")))
sketch1.addConstraint(Sketcher.Constraint("DistanceX", -1, 1, 22, 2, Q("58.1567 mm")))
sketch1.addConstraint(Sketcher.Constraint("DistanceY", 22, 2, -1, 1, Q("17.6809 mm")))
sketch1.addConstraint(Sketcher.Constraint("DistanceX", -1, 1, 23, 2, Q("60.2719 mm")))
sketch1.addConstraint(Sketcher.Constraint("DistanceY", 23, 2, -1, 1, Q("17.0814 mm")))
sketch1.addConstraint(Sketcher.Constraint("DistanceX", -1, 1, 24, 2, Q("62.4712 mm")))
sketch1.addConstraint(Sketcher.Constraint("DistanceY", 24, 2, -1, 1, Q("17.0559 mm")))
sketch1.addConstraint(Sketcher.Constraint("DistanceY", 25, 2, -1, 1, Q("16.9719 mm")))
sketch1.addConstraint(Sketcher.Constraint("DistanceX", -1, 1, 26, 2, Q("64.0317 mm")))
sketch1.addConstraint(Sketcher.Constraint("DistanceY", 26, 2, -1, 1, Q("16.5604 mm")))
sketch1.addConstraint(Sketcher.Constraint("DistanceX", -1, 1, 27, 2, Q("64.5194 mm")))
sketch1.addConstraint(Sketcher.Constraint("DistanceY", 27, 2, -1, 1, Q("15.8794 mm")))
sketch1.addConstraint(Sketcher.Constraint("DistanceX", -1, 1, 28, 2, Q("64.6979 mm")))
sketch1.addConstraint(Sketcher.Constraint("DistanceY", 28, 2, -1, 1, Q("15.0676 mm")))
sketch1.addConstraint(Sketcher.Constraint("DistanceX", -1, 1, 30, 2, Q("64.5279 mm")))
sketch1.addConstraint(Sketcher.Constraint("DistanceY", -1, 1, 30, 2, Q("15.8914 mm")))
sketch1.addConstraint(Sketcher.Constraint("DistanceX", -1, 1, 31, 2, Q("64.0302 mm")))
sketch1.addConstraint(Sketcher.Constraint("DistanceY", -1, 1, 31, 2, Q("16.5693 mm")))
sketch1.addConstraint(Sketcher.Constraint("DistanceX", -1, 1, 32, 2, Q("63.3002 mm")))
sketch1.addConstraint(Sketcher.Constraint("DistanceY", -1, 1, 32, 2, Q("16.9797 mm")))
sketch1.addConstraint(Sketcher.Constraint("DistanceX", -1, 1, 33, 2, Q("62.4669 mm")))
sketch1.addConstraint(Sketcher.Constraint("DistanceY", -1, 1, 33, 2, Q("17.0619 mm")))
sketch1.addConstraint(Sketcher.Constraint("DistanceX", -1, 1, 34, 2, Q("60.2718 mm")))
sketch1.addConstraint(Sketcher.Constraint("DistanceY", -1, 1, 34, 2, Q("17.0848 mm")))
sketch1.addConstraint(Sketcher.Constraint("DistanceX", -1, 1, 35, 2, Q("58.1543 mm")))
sketch1.addConstraint(Sketcher.Constraint("DistanceX", -1, 1, 36, 2, Q("56.2623 mm")))
sketch1.addConstraint(Sketcher.Constraint("DistanceY", -1, 1, 36, 2, Q("18.8029 mm")))
sketch1.addConstraint(Sketcher.Constraint("DistanceX", -1, 1, 37, 2, Q("54.7233 mm")))
sketch1.addConstraint(Sketcher.Constraint("DistanceY", -1, 1, 37, 2, Q("20.3646 mm")))
sketch1.addConstraint(Sketcher.Constraint("DistanceX", -1, 1, 38, 2, Q("53.6382 mm")))
sketch1.addConstraint(Sketcher.Constraint("DistanceX", -1, 1, 39, 2, Q("53.0683 mm")))
sketch1.addConstraint(Sketcher.Constraint("DistanceX", -1, 1, 40, 2, Q("52.8783 mm")))
sketch1.addConstraint(Sketcher.Constraint("DistanceY", -1, 1, 40, 2, Q("25.0411 mm")))
sketch1.addConstraint(Sketcher.Constraint("DistanceX", -1, 1, 41, 2, Q("52.4811 mm")))
sketch1.addConstraint(Sketcher.Constraint("DistanceY", -1, 1, 41, 2, Q("25.5759 mm")))
sketch1.addConstraint(Sketcher.Constraint("DistanceX", -1, 1, 42, 2, Q("51.9289 mm")))
sketch1.addConstraint(Sketcher.Constraint("DistanceY", -1, 1, 42, 2, Q("25.9507 mm")))
sketch1.addConstraint(Sketcher.Constraint("DistanceY", -1, 1, 43, 2, Q("39.5287 mm")))
sketch1.addConstraint(Sketcher.Constraint("DistanceY", -1, 1, 44, 2, Q("39.7917 mm")))
sketch1.addConstraint(Sketcher.Constraint("DistanceX", -1, 1, 45, 2, Q("21.4259 mm")))
sketch1.addConstraint(Sketcher.Constraint("DistanceY", -1, 1, 45, 2, Q("39.9459 mm")))
sketch1.addConstraint(Sketcher.Constraint("DistanceX", -1, 1, 46, 2, Q("20.6976 mm")))
sketch1.addConstraint(Sketcher.Constraint("DistanceY", -1, 1, 46, 2, Q("40.0009 mm")))
sketch1.addConstraint(Sketcher.Constraint("DistanceX", 51, 2, -1, 1, Q("59.6981 mm")))
sketch1.addConstraint(Sketcher.Constraint("DistanceY", -1, 1, 51, 2, Q("40.0006 mm")))
sketch1.addConstraint(Sketcher.Constraint("DistanceY", -1, 1, 52, 2, Q("39.7556 mm")))
sketch1.addConstraint(Sketcher.Constraint("DistanceX", 53, 2, -1, 1, Q("62.6341 mm")))
sketch1.addConstraint(Sketcher.Constraint("DistanceY", -1, 1, 53, 2, Q("39.0468 mm")))
sketch1.addConstraint(Sketcher.Constraint("DistanceX", 54, 2, -1, 1, Q("63.7466 mm")))
sketch1.addConstraint(Sketcher.Constraint("DistanceY", -1, 1, 54, 2, Q("37.9452 mm")))
sketch1.addConstraint(Sketcher.Constraint("DistanceX", 55, 2, -1, 1, Q("64.4537 mm")))
sketch1.addConstraint(Sketcher.Constraint("DistanceY", -1, 1, 55, 2, Q("36.5492 mm")))
sketch1.addConstraint(Sketcher.Constraint("Distance", 47, Q("3.71636 mm")))
sketch1.addConstraint(Sketcher.Constraint("Distance", 50, Q("10.98315 mm")))
sketch1.addConstraint(Sketcher.Constraint("Distance", 51, Q("54.717429 mm")))
sketch1.addConstraint(Sketcher.Constraint("DistanceY", 59, 3, -1, 1, Q("11.964319 mm")))
sketch1.addConstraint(Sketcher.Constraint("DistanceY", 63, 3, -1, 1, Q("10.95745 mm")))
sketch1.addConstraint(Sketcher.Constraint("DistanceY", -1, 1, 64, 3, Q("12.03785 mm")))
sketch1.addConstraint(Sketcher.Constraint("DistanceX", 65, 3, -1, 1, Q("32.70075 mm")))
sketch1.addConstraint(Sketcher.Constraint("DistanceY", -1, 1, 65, 3, Q("12.03915 mm")))
sketch1.addConstraint(Sketcher.Constraint("DistanceY", -1, 1, 69, 3, Q("34.03845 mm")))
sketch1.addConstraint(Sketcher.Constraint("DistanceY", -1, 1, 71, 3, Q("11.04075 mm")))
sketch1.addConstraint(Sketcher.Constraint("DistanceY", 7, 2, -1, 1, Q("39.999559 mm")))
sketch1.addConstraint(Sketcher.Constraint("DistanceY", 8, 2, -1, 1, Q("50.300132 mm")))
sketch1.addConstraint(Sketcher.Constraint("DistanceY", 57, 3, -1, 1, Q("33.960634 mm")))
sketch1.addConstraint(Sketcher.Constraint("DistanceY", 58, 3, -1, 1, Q("11.959936 mm")))
sketch1.addConstraint(Sketcher.Constraint("DistanceY", 62, 3, -1, 1, Q("13.962368 mm")))
sketch1.addConstraint(Sketcher.Constraint("DistanceX", -1, 1, 72, 3, Q("32.698325 mm")))
sketch1.addConstraint(Sketcher.Constraint("DistanceY", -1, 1, 72, 3, Q("14.036925 mm")))
pad1 = body.newObject("PartDesign::Pad", "Pad")
pad1.Profile = sketch1
pad1.Length = 5

# Sketch on XY plane
sketch2 = body.newObject("Sketcher::SketchObject", "Sketch001")
sketch2.AttachmentSupport = (doc.getObject("XY_Plane"), [""])
sketch2.MapMode = "FlatFace"
sketch2.addGeometry(Part.Circle(Vector(0, 0, 0), Vector(0, 0, 1), 8.1), False)
sketch2.addGeometry(Part.Circle(Vector(0, 0, 0), Vector(0, 0, 1), 1.6), False)
sketch2.addConstraint(Sketcher.Constraint("Coincident", 1, 3, 0, 3))
sketch2.addConstraint(Sketcher.Constraint("PointOnObject", 0, 3, -2))
sketch2.addConstraint(Sketcher.Constraint("Diameter", 0, Q("16.2 mm")))
sketch2.addConstraint(Sketcher.Constraint("Diameter", 1, Q("3.3 mm")))
sketch2.addConstraint(Sketcher.Constraint("DistanceY", -1, 1, 0, 3, Q("0.0019 mm")))
pocket1 = body.newObject("PartDesign::Pocket", "Pocket")
pocket1.Profile = sketch2
pocket1.Length = 3.9
pocket1.Reversed = True
doc.recompute()

fillet = body.newObject("PartDesign::Fillet", "Fillet")
fillet.Base = (pocket1, edges_at(pocket1, [
    (-4.98, -40, 2.5),
    (16.98, -40.001, 2.5),
    (-4.981, 40.001, 2.5),
    (16.981, 40.001, 2.5),
]))
fillet.Radius = 5

doc.recompute()
